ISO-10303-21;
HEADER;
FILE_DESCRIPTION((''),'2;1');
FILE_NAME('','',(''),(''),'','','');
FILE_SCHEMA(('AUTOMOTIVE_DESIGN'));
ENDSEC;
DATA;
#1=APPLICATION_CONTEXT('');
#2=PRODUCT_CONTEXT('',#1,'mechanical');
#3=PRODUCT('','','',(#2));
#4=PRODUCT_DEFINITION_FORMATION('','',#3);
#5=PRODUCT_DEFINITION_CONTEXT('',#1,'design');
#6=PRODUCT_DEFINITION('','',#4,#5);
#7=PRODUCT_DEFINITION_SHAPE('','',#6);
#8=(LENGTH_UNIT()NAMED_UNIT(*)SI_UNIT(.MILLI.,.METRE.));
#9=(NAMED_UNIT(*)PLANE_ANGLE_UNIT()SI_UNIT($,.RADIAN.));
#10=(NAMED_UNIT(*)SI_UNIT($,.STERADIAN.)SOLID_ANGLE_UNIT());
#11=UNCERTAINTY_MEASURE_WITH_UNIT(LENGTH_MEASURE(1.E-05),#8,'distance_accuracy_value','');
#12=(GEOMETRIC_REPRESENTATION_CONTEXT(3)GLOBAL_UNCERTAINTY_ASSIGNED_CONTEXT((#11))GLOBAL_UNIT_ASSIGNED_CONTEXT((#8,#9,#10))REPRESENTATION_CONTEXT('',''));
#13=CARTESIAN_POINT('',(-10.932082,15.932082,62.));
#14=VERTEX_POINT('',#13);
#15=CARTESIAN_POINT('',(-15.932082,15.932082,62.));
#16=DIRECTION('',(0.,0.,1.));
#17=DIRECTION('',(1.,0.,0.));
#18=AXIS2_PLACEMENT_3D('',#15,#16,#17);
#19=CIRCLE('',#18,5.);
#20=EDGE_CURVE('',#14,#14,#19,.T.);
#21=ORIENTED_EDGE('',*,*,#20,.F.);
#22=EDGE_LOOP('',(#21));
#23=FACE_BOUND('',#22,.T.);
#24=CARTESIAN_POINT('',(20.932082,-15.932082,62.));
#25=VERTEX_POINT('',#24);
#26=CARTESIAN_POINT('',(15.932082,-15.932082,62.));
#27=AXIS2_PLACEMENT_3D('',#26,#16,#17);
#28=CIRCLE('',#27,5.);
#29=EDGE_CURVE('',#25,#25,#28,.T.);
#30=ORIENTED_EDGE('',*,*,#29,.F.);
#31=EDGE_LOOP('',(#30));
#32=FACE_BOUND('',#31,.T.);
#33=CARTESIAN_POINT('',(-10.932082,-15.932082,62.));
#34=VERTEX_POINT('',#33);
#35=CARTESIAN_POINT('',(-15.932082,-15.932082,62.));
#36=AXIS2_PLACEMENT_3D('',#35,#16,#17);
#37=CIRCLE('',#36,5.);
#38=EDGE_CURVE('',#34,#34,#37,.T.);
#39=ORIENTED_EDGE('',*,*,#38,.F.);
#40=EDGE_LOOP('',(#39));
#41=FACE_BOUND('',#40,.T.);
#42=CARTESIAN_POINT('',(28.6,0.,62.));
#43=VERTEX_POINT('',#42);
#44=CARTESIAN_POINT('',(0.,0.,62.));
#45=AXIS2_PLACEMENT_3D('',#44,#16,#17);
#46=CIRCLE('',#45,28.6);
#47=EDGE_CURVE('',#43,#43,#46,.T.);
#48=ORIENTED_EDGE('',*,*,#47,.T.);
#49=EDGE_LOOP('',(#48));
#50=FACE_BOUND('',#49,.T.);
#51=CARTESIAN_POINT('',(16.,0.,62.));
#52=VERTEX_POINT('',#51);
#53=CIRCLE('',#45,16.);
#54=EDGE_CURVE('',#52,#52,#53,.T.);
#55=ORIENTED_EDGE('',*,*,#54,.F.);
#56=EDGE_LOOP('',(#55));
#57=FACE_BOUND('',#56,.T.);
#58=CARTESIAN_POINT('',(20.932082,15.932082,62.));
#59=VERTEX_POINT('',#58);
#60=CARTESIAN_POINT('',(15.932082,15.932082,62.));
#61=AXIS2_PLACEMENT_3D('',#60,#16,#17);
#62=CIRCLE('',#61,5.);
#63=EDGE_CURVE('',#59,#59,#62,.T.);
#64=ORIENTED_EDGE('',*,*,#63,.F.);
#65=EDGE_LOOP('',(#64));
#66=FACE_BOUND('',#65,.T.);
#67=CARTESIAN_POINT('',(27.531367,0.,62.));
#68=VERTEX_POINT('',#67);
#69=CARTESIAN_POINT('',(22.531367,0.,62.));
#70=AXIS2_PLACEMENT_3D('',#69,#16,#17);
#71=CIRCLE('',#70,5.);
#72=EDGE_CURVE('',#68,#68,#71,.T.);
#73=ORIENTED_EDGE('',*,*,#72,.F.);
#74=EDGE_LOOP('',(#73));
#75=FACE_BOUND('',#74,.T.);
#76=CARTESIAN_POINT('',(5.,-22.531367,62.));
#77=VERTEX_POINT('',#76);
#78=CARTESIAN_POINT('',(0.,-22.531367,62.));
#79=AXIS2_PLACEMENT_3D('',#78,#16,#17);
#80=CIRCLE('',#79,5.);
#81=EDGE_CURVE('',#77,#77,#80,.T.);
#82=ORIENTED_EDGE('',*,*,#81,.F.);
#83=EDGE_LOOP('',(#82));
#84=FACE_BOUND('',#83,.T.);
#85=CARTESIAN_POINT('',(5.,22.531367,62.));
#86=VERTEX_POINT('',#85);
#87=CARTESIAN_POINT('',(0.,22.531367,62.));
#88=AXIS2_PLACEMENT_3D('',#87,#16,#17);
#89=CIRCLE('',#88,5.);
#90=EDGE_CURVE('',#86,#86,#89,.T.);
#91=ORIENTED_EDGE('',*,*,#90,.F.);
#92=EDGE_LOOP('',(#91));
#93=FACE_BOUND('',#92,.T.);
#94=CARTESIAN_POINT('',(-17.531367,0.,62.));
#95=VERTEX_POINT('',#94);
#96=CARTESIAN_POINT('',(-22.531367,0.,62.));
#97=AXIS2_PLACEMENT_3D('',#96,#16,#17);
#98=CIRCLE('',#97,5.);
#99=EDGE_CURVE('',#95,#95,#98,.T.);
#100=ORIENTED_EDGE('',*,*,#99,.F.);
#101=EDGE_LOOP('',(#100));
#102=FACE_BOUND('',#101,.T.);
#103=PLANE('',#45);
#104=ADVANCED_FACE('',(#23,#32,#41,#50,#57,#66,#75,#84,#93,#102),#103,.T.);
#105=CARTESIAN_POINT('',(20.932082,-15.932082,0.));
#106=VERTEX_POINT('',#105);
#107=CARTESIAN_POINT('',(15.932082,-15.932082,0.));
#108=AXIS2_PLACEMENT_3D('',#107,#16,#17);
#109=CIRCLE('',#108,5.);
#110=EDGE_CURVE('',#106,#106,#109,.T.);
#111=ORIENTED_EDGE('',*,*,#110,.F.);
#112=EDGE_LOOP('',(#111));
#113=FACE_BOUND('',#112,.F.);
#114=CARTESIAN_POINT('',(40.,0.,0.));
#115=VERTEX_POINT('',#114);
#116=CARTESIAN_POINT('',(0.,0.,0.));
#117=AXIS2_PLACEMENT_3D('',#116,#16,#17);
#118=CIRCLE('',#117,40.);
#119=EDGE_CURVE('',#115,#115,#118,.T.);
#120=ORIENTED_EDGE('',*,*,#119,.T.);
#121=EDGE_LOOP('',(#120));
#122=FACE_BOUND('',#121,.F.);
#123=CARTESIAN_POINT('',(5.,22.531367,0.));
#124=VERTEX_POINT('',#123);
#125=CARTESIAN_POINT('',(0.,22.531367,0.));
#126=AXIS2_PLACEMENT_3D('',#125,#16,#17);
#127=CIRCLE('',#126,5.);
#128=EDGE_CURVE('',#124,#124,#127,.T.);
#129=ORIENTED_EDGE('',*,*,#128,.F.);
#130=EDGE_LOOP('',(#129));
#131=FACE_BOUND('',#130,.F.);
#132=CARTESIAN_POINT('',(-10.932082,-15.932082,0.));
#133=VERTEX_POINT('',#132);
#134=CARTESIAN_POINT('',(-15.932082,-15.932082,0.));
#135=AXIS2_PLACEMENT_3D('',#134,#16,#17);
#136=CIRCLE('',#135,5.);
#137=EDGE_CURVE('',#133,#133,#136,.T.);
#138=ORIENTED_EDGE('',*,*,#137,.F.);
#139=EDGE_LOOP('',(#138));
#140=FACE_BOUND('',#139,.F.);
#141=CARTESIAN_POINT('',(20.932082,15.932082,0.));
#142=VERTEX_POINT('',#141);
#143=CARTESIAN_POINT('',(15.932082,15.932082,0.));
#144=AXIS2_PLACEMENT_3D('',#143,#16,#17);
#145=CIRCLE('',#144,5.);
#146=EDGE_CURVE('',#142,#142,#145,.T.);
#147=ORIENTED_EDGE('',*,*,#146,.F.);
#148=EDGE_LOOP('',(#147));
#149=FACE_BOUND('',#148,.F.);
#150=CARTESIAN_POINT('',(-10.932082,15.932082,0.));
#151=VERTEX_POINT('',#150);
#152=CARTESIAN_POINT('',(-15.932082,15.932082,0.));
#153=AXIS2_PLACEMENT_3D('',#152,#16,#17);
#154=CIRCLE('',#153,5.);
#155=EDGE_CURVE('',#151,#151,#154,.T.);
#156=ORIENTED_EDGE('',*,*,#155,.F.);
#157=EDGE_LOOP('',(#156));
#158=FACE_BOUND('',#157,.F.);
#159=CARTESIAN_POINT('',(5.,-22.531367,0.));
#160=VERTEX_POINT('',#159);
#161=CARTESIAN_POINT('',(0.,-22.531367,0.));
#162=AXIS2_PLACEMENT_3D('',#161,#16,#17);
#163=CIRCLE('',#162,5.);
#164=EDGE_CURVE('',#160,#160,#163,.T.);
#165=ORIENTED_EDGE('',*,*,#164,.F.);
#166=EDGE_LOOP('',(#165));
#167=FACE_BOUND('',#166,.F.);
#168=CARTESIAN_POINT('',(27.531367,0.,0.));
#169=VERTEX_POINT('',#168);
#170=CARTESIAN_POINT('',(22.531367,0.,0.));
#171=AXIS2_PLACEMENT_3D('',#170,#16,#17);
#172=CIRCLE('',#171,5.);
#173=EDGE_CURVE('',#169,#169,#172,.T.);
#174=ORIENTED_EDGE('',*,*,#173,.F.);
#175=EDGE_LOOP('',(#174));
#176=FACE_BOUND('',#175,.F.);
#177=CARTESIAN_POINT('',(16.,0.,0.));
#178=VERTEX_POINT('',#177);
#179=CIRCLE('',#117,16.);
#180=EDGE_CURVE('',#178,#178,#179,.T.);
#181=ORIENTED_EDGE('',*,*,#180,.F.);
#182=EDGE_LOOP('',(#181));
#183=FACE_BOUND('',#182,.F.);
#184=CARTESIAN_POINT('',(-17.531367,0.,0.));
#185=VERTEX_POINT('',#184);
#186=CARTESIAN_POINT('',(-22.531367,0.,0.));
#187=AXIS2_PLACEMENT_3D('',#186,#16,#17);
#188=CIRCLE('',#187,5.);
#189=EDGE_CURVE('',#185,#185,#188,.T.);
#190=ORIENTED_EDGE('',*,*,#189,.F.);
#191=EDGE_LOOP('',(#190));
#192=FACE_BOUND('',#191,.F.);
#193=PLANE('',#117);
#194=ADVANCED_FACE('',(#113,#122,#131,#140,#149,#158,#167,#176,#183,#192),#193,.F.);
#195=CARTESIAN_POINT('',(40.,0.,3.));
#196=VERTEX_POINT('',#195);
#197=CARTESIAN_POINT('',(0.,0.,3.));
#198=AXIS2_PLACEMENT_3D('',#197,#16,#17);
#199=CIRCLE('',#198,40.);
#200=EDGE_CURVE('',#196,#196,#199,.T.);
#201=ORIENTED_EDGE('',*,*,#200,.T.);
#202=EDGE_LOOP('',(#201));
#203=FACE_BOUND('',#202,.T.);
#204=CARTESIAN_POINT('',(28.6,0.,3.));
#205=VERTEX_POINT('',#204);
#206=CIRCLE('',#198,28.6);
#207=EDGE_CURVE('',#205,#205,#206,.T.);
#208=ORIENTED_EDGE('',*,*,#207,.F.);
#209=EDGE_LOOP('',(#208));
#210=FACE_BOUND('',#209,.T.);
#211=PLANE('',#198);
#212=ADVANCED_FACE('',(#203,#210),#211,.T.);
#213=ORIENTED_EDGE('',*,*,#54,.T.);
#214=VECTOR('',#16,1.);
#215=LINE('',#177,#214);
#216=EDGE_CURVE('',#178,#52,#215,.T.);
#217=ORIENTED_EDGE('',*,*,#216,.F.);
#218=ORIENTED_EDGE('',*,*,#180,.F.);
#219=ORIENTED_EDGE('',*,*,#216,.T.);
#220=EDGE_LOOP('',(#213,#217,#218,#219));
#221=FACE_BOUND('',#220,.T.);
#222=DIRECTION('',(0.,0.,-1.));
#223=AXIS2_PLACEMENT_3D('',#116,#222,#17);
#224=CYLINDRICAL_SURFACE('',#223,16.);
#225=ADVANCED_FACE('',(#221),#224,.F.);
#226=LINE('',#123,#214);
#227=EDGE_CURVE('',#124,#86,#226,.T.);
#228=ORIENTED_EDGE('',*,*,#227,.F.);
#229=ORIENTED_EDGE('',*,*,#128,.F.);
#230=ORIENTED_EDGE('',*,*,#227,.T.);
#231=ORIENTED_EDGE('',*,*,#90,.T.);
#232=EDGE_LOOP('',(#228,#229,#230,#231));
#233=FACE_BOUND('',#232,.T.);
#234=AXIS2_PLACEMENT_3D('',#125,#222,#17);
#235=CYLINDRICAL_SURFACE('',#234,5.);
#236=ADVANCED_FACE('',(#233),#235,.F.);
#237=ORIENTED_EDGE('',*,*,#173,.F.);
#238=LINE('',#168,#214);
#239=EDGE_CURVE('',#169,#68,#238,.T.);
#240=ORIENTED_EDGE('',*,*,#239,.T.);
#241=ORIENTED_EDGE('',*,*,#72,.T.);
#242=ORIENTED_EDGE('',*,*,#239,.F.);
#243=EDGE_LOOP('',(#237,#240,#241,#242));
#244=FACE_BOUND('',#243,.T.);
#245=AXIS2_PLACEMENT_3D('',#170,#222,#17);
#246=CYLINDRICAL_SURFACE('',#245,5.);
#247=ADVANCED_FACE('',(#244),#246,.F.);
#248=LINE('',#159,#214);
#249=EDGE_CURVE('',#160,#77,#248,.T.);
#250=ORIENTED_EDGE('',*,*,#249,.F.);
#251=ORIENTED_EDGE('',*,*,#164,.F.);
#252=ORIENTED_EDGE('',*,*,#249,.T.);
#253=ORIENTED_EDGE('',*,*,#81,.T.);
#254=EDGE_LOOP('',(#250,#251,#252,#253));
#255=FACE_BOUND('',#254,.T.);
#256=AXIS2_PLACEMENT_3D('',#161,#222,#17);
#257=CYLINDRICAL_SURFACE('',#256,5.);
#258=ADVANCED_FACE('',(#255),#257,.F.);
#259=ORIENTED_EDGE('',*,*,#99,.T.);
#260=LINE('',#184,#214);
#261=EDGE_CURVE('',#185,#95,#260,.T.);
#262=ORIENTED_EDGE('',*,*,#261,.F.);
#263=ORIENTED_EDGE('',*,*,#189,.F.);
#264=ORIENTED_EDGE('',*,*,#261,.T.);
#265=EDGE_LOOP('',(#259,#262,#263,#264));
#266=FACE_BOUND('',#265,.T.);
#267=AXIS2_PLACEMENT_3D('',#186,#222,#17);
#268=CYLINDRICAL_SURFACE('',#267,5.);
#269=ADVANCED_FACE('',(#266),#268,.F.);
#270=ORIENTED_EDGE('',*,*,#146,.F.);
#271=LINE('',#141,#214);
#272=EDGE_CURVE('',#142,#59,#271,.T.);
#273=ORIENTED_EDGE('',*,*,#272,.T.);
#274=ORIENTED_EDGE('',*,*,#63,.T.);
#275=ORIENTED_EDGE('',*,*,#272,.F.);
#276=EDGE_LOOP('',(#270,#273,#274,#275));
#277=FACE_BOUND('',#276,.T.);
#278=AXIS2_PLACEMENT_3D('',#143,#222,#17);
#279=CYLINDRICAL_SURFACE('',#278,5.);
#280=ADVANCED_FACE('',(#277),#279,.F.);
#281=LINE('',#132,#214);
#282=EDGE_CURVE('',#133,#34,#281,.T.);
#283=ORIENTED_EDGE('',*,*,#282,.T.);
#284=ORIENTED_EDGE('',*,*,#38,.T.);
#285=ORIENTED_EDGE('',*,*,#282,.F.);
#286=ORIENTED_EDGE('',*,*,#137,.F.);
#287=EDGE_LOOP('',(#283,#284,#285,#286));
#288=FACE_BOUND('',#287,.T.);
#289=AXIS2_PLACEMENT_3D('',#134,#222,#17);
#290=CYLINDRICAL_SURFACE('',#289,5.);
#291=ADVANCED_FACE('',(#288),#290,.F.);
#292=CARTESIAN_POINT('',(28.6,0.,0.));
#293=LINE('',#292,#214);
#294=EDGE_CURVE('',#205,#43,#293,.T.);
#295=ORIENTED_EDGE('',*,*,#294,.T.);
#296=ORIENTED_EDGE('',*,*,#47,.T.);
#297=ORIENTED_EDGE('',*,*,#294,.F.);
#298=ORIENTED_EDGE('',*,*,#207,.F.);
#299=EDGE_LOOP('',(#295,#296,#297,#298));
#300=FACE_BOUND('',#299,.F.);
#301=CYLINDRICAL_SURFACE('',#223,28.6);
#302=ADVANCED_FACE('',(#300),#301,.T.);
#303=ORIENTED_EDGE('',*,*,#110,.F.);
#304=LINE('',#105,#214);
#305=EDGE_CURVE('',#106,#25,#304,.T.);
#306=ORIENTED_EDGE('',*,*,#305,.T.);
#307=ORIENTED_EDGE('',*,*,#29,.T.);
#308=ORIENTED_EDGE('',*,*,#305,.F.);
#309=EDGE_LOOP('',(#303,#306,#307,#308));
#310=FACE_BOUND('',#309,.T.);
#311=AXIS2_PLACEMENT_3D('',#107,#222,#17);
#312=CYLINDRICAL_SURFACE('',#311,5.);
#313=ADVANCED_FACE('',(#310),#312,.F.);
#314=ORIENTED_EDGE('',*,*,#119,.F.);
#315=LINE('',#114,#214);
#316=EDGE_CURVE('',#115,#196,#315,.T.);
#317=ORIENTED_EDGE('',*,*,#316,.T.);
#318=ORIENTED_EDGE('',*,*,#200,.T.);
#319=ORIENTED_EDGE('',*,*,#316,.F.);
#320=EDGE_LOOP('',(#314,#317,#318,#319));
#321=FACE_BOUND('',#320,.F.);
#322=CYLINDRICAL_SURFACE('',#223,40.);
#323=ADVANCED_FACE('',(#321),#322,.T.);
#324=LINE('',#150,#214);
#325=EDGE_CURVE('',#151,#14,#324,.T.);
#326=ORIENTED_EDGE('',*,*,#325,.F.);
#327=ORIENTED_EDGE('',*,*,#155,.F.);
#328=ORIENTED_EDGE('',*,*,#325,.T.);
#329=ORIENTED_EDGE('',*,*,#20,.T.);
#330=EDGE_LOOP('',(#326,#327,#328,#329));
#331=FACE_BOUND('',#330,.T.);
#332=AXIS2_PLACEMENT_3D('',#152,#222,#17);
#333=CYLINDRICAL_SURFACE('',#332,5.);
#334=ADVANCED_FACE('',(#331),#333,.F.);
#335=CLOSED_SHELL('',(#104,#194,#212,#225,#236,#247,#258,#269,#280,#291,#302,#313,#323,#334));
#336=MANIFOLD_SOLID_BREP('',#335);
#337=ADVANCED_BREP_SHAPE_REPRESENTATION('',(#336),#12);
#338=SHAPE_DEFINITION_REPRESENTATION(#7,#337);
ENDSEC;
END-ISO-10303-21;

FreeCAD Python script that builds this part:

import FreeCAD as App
import Part
import Sketcher
from FreeCAD import Vector

doc = App.newDocument("Part")
body = doc.addObject("PartDesign::Body", "Body")

# Sketch on XY plane
sketch1 = doc.addObject("Sketcher::SketchObject", "Sketch")
body.addObject(sketch1)
sketch1.AttachmentSupport = (doc.XY_Plane, [""])
sketch1.MapMode = "FlatFace"
sketch1.addGeometry(Part.Circle(Vector(0, 0, 0), Vector(0, 0, 1), 40), False)
sketch1.addGeometry(Part.Circle(Vector(0, 0, 0), Vector(0, 0, 1), 29), False)
sketch1.addConstraint(Sketcher.Constraint("Coincident", 0, 3, -1, 1))
sketch1.addConstraint(Sketcher.Constraint("Coincident", 1, 3, -1, 1))
sketch1.addConstraint(Sketcher.Constraint("Diameter", 0, 80.0))
sketch1.addConstraint(Sketcher.Constraint("Diameter", 1, 57.2))
pad1 = doc.addObject("PartDesign::Pad", "Pad")
body.addObject(pad1)
pad1.Profile = sketch1
pad1.Length = 3

# Sketch on XY plane
sketch2 = doc.addObject("Sketcher::SketchObject", "Sketch001")
body.addObject(sketch2)
sketch2.AttachmentSupport = (doc.XY_Plane, [""])
sketch2.MapMode = "FlatFace"
sketch2.addGeometry(Part.Circle(Vector(0, 0, 0), Vector(0, 0, 1), 29), False)
sketch2.addGeometry(Part.Circle(Vector(-16, -16, 0), Vector(0, 0, 1), 5), False)
sketch2.addGeometry(Part.Circle(Vector(0, -23, 0), Vector(0, 0, 1), 5), False)
sketch2.addGeometry(Part.Circle(Vector(16, -16, 0), Vector(0, 0, 1), 5), False)
sketch2.addGeometry(Part.Circle(Vector(-23, 0, 0), Vector(0, 0, 1), 5), False)
sketch2.addGeometry(Part.Circle(Vector(-16, 16, 0), Vector(0, 0, 1), 5), False)
sketch2.addGeometry(Part.Circle(Vector(0, 0, 0), Vector(0, 0, 1), 16), False)
sketch2.addGeometry(Part.Circle(Vector(23, 0, 0), Vector(0, 0, 1), 5), False)
sketch2.addGeometry(Part.Circle(Vector(0, 23, 0), Vector(0, 0, 1), 5), False)
sketch2.addGeometry(Part.Circle(Vector(16, 16, 0), Vector(0, 0, 1), 5), False)
sketch2.addConstraint(Sketcher.Constraint("Coincident", 0, 3, -1, 1))
sketch2.addConstraint(Sketcher.Constraint("Coincident", 6, 3, -1, 1))
sketch2.addConstraint(Sketcher.Constraint("Equal", 1, 2))
sketch2.addConstraint(Sketcher.Constraint("Equal", 2, 3))
sketch2.addConstraint(Sketcher.Constraint("Equal", 3, 4))
sketch2.addConstraint(Sketcher.Constraint("Equal", 4, 5))
sketch2.addConstraint(Sketcher.Constraint("Equal", 5, 7))
sketch2.addConstraint(Sketcher.Constraint("Equal", 7, 8))
sketch2.addConstraint(Sketcher.Constraint("Equal", 8, 9))
sketch2.addConstraint(Sketcher.Constraint("Symmetric", 3, 3, 5, 3, -1, 1))
sketch2.addConstraint(Sketcher.Constraint("Symmetric", 4, 3, 7, 3, -1, 1))
sketch2.addConstraint(Sketcher.Constraint("Symmetric", 2, 3, 8, 3, -1, 1))
sketch2.addConstraint(Sketcher.Constraint("Symmetric", 1, 3, 9, 3, -1, 1))
sketch2.addConstraint(Sketcher.Constraint("Symmetric", 1, 3, 3, 3, -2))
sketch2.addConstraint(Sketcher.Constraint("PointOnObject", 2, 3, -2))
sketch2.addConstraint(Sketcher.Constraint("PointOnObject", 4, 3, -1))
sketch2.addConstraint(Sketcher.Constraint("Diameter", 1, 10.0))
sketch2.addConstraint(Sketcher.Constraint("Diameter", 6, 32.0))
sketch2.addConstraint(Sketcher.Constraint("Diameter", 0, 57.2))
sketch2.addConstraint(Sketcher.Constraint("DistanceX", 4, 3, 3, 3, 38.463449))
sketch2.addConstraint(Sketcher.Constraint("DistanceY", 2, 3, 5, 3, 38.463449))
sketch2.addConstraint(Sketcher.Constraint("DistanceX", 1, 3, -1, 1, 15.932082))
sketch2.addConstraint(Sketcher.Constraint("DistanceY", 1, 3, -1, 1, 15.932082))
pad2 = doc.addObject("PartDesign::Pad", "Pad001")
body.addObject(pad2)
pad2.Profile = sketch2
pad2.Length = 62

doc.recompute()
